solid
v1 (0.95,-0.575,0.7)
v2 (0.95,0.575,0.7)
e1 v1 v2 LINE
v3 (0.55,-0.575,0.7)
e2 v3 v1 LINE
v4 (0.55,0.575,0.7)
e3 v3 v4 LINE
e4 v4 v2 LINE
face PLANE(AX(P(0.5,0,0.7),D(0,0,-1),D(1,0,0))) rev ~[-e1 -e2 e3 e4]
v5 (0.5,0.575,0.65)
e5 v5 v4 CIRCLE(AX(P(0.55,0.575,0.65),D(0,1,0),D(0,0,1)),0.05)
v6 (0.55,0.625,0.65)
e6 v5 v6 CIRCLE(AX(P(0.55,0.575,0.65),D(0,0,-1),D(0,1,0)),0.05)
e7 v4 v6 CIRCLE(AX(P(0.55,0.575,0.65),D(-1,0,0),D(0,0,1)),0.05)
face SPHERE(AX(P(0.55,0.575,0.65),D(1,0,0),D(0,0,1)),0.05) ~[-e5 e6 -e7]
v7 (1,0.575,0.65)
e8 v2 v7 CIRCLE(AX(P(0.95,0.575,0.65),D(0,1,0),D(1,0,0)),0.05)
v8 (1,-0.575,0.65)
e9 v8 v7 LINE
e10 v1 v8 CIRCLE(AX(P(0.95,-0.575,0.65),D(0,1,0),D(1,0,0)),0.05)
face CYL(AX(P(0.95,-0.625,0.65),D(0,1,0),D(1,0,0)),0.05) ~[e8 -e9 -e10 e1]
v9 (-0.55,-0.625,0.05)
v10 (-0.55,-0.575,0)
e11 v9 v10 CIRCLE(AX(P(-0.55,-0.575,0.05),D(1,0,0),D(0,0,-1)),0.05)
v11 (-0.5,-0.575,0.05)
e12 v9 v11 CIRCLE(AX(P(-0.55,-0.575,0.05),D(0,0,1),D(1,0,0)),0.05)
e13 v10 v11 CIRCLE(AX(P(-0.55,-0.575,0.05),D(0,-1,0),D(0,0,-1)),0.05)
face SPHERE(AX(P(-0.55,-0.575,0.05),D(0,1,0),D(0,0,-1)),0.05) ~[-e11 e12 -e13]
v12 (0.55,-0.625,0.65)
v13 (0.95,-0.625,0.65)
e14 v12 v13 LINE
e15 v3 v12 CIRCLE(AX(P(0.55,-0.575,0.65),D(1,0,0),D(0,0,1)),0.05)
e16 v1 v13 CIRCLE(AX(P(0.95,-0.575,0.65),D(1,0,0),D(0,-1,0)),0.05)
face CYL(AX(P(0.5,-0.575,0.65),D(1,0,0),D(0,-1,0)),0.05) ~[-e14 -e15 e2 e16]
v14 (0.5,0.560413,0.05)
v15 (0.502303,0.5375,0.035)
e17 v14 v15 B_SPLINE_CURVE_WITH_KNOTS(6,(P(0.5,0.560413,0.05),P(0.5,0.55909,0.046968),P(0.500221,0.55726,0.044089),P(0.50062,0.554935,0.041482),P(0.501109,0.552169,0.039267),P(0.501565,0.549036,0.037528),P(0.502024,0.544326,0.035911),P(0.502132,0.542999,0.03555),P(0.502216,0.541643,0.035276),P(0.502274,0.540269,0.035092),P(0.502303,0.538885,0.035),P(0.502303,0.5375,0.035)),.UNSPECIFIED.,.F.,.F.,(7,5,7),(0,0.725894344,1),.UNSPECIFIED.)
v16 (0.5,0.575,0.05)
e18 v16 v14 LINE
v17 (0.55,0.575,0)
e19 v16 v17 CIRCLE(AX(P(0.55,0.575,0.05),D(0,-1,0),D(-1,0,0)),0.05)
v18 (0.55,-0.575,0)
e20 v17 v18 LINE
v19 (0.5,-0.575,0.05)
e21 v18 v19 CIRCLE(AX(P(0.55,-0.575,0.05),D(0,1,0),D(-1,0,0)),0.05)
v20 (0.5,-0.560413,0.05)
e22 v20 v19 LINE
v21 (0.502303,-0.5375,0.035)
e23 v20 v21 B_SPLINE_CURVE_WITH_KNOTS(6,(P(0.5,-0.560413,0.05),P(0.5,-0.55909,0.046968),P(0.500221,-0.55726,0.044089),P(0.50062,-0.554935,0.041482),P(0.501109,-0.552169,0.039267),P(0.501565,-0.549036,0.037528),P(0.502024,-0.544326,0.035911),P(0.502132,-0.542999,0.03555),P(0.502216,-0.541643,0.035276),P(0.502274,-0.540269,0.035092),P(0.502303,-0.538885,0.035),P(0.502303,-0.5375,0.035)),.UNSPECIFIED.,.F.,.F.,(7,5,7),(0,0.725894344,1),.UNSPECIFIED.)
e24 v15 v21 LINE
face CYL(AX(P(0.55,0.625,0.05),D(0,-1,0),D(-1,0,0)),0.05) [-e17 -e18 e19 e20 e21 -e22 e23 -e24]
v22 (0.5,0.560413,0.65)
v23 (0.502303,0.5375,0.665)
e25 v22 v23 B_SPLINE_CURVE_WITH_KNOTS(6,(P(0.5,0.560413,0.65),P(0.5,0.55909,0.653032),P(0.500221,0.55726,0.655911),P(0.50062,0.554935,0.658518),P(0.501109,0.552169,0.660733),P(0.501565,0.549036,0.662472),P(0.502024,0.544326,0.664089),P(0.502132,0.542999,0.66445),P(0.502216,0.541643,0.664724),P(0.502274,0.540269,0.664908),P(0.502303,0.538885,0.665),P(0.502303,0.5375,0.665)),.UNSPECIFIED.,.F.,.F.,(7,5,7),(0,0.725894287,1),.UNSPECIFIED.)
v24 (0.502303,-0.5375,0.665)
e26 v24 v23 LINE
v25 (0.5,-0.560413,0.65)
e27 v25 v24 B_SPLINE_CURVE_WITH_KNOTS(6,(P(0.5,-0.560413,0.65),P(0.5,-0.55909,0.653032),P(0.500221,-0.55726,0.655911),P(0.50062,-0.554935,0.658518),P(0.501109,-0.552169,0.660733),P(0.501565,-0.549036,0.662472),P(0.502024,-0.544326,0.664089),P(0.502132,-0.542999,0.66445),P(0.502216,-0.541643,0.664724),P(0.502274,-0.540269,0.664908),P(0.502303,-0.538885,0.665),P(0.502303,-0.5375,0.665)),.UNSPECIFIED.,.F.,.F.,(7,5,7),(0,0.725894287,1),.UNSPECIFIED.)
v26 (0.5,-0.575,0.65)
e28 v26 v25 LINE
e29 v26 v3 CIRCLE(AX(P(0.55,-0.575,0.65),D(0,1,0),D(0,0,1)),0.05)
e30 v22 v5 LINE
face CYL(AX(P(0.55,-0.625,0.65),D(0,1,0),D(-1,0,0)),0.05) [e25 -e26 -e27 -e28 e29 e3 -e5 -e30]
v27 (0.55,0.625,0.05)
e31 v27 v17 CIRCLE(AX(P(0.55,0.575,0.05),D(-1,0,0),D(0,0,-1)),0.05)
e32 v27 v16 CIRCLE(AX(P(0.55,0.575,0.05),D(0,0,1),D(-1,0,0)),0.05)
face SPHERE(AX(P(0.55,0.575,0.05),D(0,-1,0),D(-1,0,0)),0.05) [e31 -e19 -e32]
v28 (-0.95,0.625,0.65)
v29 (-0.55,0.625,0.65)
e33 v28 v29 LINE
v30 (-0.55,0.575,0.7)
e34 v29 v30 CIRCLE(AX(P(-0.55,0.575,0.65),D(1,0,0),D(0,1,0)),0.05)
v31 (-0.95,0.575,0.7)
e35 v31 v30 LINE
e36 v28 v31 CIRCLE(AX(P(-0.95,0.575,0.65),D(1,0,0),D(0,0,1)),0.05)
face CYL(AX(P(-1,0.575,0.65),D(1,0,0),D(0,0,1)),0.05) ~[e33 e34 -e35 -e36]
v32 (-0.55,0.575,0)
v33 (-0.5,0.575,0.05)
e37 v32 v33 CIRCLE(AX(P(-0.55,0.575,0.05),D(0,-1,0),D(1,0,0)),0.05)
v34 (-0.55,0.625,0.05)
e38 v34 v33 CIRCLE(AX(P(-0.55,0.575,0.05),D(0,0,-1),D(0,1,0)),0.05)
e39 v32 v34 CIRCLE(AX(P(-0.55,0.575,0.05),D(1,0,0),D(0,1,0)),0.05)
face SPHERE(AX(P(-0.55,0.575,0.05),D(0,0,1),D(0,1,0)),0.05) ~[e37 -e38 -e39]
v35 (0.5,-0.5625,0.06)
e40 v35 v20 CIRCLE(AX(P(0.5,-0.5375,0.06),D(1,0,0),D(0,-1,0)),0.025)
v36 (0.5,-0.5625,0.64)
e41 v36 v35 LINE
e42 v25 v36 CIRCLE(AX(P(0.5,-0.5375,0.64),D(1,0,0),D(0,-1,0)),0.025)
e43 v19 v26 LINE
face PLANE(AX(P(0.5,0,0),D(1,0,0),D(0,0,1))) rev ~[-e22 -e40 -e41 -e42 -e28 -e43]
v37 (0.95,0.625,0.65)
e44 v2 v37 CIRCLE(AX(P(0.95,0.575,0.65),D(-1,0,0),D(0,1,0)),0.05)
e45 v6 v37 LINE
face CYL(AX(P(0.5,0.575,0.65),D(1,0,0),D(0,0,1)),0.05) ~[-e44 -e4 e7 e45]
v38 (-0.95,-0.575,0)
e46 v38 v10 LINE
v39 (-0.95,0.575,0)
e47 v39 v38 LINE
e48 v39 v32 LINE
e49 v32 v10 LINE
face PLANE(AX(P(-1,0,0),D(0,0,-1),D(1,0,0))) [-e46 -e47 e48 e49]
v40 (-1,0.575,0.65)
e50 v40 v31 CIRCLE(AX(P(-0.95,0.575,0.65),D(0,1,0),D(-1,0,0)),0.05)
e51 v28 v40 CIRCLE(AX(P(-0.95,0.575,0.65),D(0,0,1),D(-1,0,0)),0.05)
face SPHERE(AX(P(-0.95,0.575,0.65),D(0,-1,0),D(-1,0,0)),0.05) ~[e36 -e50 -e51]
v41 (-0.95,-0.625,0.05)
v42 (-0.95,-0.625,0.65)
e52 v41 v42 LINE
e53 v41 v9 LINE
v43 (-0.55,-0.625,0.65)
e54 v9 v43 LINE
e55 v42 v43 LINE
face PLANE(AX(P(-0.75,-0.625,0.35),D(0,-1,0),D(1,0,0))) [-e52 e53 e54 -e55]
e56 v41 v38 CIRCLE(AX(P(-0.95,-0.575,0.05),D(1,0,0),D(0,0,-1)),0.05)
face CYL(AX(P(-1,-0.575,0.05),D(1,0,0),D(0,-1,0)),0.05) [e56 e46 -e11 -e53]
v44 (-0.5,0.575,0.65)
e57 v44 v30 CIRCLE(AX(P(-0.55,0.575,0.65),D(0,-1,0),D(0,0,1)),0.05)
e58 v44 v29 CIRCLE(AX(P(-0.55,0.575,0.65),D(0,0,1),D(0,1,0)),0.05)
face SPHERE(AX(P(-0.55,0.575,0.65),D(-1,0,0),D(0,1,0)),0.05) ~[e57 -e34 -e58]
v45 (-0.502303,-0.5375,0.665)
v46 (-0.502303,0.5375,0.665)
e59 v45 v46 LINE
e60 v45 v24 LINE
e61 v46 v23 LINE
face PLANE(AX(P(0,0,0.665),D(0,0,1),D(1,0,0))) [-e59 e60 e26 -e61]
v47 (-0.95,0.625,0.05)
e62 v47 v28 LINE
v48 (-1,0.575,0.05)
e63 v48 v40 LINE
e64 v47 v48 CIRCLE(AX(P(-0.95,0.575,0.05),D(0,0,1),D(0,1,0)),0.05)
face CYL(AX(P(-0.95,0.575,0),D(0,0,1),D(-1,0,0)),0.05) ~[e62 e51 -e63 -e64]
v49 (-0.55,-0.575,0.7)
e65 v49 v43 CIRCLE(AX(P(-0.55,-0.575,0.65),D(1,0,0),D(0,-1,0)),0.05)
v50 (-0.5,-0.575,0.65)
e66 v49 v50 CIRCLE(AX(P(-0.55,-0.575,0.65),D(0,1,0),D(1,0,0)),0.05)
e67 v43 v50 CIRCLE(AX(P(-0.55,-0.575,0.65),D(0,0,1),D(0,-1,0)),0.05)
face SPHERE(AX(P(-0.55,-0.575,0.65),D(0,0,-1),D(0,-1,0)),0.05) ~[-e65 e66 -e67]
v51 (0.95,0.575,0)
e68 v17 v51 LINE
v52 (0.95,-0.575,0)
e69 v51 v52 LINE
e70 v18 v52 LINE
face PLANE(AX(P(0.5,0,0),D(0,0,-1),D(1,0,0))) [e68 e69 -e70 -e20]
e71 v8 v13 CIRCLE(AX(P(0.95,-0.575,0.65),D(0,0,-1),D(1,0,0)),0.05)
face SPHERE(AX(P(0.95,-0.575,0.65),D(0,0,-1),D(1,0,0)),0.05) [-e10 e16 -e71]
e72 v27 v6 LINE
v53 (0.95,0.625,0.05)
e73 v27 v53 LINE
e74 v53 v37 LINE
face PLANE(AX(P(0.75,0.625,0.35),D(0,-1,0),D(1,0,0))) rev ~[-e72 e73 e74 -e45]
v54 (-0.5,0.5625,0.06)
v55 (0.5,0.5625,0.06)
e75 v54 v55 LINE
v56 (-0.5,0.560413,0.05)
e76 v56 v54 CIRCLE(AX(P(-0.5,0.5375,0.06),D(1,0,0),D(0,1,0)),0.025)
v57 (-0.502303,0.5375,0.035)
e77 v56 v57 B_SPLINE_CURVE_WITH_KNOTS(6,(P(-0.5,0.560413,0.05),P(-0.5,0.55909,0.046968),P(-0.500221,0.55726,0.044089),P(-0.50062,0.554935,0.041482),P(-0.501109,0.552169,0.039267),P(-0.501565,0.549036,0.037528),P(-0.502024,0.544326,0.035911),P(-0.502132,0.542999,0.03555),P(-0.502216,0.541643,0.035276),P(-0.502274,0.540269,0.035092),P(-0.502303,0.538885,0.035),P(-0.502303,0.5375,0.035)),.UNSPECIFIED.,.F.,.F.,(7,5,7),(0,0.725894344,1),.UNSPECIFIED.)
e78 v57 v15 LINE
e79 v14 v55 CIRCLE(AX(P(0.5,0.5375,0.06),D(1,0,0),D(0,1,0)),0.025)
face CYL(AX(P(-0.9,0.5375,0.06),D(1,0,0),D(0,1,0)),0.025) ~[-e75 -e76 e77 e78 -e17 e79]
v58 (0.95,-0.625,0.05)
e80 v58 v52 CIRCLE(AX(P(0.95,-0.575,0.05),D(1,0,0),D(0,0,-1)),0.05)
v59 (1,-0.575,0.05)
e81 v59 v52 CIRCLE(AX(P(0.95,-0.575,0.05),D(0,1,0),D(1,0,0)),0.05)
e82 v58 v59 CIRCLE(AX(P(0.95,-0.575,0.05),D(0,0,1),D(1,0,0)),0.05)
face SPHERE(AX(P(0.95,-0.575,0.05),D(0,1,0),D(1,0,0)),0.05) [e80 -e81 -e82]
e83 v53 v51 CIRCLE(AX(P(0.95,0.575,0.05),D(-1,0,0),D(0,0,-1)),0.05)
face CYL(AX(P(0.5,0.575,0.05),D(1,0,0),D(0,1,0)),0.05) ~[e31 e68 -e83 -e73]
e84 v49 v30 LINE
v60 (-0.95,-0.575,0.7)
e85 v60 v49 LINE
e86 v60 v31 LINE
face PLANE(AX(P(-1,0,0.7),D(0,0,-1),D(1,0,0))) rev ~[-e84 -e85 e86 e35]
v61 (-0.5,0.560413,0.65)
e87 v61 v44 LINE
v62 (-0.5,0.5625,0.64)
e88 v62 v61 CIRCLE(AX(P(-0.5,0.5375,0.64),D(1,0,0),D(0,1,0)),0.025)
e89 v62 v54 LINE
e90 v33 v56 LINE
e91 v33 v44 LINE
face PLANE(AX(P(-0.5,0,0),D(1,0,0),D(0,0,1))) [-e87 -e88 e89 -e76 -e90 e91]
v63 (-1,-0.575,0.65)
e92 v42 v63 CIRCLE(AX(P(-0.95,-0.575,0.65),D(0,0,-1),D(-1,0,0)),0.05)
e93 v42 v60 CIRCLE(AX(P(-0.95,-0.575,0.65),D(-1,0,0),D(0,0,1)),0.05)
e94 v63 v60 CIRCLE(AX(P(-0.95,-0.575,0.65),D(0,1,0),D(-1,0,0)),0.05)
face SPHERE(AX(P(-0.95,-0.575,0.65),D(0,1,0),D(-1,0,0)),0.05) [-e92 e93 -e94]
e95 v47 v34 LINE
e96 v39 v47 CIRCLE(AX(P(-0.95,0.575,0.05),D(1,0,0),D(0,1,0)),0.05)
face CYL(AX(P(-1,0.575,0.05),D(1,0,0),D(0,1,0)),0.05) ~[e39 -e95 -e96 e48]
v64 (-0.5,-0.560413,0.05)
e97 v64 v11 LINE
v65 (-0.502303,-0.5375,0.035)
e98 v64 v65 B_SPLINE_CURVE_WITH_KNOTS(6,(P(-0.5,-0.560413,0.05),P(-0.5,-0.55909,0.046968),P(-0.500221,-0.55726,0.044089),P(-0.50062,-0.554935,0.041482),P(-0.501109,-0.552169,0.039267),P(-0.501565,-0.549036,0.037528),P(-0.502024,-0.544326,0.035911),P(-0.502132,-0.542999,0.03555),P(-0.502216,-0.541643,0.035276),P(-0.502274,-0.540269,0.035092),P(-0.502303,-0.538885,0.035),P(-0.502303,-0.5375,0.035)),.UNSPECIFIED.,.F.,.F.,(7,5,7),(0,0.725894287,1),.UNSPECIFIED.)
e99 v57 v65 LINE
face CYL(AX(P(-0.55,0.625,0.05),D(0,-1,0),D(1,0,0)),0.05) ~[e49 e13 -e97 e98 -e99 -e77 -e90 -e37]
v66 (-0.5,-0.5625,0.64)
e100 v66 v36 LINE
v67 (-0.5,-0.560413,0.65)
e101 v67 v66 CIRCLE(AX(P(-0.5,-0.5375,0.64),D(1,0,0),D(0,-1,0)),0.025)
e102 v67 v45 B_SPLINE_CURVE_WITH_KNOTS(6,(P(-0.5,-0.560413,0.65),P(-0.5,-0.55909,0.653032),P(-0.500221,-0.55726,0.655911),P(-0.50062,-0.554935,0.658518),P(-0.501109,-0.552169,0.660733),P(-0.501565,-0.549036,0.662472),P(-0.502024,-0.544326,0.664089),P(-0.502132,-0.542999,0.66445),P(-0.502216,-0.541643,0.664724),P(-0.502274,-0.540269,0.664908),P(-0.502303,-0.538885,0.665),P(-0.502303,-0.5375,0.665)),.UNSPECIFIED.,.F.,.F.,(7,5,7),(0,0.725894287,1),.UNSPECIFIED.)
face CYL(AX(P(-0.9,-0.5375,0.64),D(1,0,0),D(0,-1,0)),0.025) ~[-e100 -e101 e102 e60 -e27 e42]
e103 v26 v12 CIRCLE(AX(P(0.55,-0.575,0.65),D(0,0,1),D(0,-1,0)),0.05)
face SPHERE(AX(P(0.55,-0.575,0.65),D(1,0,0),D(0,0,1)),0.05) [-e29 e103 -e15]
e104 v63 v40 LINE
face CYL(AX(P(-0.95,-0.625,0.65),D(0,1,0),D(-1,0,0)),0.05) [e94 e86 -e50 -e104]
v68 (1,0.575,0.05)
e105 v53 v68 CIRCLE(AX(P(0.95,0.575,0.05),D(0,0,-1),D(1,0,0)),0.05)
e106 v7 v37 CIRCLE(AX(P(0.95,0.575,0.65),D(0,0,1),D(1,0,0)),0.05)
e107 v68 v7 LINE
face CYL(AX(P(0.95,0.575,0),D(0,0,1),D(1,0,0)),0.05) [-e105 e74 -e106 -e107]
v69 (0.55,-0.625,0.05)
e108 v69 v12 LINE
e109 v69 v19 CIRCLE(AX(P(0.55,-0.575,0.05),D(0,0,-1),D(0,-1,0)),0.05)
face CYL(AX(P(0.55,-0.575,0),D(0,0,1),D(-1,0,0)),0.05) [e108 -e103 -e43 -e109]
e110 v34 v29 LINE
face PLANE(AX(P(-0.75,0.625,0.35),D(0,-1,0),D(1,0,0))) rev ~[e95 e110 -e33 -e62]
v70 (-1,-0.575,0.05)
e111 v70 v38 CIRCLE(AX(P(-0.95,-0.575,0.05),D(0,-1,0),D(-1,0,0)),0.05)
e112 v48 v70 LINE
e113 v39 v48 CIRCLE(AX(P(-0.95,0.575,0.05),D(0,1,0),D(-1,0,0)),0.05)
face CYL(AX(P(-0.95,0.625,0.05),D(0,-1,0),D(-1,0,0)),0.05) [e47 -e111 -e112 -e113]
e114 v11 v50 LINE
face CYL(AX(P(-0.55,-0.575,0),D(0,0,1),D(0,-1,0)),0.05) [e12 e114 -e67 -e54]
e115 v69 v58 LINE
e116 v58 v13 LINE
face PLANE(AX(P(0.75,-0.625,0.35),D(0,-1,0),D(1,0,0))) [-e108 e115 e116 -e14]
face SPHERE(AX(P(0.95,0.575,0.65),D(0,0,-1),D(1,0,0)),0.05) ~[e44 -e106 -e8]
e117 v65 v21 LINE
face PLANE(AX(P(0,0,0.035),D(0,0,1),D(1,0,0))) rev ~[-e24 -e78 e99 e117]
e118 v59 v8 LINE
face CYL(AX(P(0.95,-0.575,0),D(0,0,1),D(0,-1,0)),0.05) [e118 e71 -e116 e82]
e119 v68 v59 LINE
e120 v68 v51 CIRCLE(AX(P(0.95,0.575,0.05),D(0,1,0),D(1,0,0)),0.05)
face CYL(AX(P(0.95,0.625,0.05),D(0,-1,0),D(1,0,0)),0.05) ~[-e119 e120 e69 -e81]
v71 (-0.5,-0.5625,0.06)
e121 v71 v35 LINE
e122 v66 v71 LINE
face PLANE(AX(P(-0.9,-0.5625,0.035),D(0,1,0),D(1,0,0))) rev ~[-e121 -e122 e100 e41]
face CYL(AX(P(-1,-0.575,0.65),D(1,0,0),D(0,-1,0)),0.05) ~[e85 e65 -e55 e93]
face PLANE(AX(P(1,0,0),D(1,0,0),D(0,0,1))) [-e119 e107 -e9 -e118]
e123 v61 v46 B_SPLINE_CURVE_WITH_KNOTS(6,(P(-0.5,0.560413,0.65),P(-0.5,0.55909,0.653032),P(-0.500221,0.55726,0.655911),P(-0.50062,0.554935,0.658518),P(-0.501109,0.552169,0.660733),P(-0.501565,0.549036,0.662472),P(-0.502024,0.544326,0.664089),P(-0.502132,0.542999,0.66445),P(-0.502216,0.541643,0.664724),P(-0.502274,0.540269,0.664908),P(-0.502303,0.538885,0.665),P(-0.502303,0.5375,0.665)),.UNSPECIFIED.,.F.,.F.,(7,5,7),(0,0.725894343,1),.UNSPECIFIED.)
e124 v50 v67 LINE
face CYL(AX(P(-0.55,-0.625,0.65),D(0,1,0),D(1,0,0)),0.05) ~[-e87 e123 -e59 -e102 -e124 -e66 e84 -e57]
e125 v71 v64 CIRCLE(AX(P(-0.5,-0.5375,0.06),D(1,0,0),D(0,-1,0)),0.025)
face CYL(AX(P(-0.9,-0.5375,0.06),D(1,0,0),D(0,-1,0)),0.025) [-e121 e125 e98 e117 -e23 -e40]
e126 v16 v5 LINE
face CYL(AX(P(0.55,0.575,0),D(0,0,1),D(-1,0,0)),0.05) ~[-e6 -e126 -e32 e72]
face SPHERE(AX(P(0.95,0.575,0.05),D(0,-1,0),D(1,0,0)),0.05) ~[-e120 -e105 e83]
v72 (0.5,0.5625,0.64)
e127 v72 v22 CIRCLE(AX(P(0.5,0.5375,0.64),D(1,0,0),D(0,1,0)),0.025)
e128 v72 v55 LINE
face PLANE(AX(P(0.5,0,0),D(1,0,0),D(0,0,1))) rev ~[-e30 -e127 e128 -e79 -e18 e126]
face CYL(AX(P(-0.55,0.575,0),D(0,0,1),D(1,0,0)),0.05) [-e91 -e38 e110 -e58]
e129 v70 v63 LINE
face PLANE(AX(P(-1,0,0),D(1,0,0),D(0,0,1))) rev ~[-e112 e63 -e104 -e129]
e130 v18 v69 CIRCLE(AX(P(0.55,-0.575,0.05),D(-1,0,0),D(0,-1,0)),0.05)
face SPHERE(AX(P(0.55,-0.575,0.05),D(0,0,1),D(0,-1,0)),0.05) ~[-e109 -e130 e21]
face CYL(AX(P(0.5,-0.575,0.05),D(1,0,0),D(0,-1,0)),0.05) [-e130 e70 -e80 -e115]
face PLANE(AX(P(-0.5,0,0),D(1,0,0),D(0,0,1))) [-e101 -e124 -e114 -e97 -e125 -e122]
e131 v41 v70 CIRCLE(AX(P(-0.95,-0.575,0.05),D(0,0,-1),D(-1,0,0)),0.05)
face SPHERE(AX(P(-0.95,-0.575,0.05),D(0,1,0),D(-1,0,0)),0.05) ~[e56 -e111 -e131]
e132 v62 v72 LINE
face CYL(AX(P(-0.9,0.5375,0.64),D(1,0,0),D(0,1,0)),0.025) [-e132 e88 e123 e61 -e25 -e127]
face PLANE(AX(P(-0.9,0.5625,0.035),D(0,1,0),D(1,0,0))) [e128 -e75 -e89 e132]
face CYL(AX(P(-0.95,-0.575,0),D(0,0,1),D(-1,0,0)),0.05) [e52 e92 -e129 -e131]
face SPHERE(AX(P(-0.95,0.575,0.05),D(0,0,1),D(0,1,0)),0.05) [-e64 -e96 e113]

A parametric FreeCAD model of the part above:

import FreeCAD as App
import Part
import Sketcher


def edges_at(feature, points):
    """Names of the edges that pass closest to the given points."""
    edges = feature.Shape.Edges
    near = lambda p: min(range(len(edges)), key=lambda i: edges[i].distToShape(Part.Vertex(*p))[0])
    return sorted({f"Edge{near(p) + 1}" for p in points})

doc = App.newDocument("Part")
body = doc.addObject("PartDesign::Body", "Body")

# Sketch on XZ plane
sketch1 = body.newObject("Sketcher::SketchObject", "Sketch")
sketch1.AttachmentSupport = (doc.getObject("XZ_Plane"), [""])
sketch1.MapMode = "FlatFace"
sketch1.addGeometry([
    Part.LineSegment(App.Vector(-1, 0.7, 0), App.Vector(-1, 0, 0)),
    Part.LineSegment(App.Vector(-1, 0, 0), App.Vector(-0.5, 0, 0)),
    Part.LineSegment(App.Vector(-0.5, 0, 0), App.Vector(-0.5, 0.7, 0)),
    Part.LineSegment(App.Vector(-0.5, 0.7, 0), App.Vector(-1, 0.7, 0)),
], False)
sketch1.addConstraint([
    Sketcher.Constraint("Coincident", 0, 2, 1, 1),
    Sketcher.Constraint("Coincident", 1, 2, 2, 1),
    Sketcher.Constraint("Coincident", 2, 2, 3, 1),
    Sketcher.Constraint("Coincident", 3, 2, 0, 1),
    Sketcher.Constraint("Vertical", 0),
    Sketcher.Constraint("Horizontal", 1),
    Sketcher.Constraint("Vertical", 2),
    Sketcher.Constraint("Horizontal", 3),
    Sketcher.Constraint("PointOnObject", 0, 2, -1),
    Sketcher.Constraint("DistanceX", 1, 1, 1, 2, 0.5),
    Sketcher.Constraint("DistanceY", 0, 2, 0, 1, 0.7),
    Sketcher.Constraint("DistanceX", 0, 2, -1, 1, 1.0),
])
pad1 = body.newObject("PartDesign::Pad", "Pad")
pad1.Profile = sketch1
pad1.Length = 1.25
pad1.Midplane = True
doc.recompute()

fillet = body.newObject("PartDesign::Fillet", "Fillet")
fillet.Base = (pad1, ["Edge1"])
fillet.UseAllEdges = True
fillet.Radius = 0.05
body2 = doc.addObject("PartDesign::Body", "Body001")

# Sketch on XZ plane
sketch2 = body2.newObject("Sketcher::SketchObject", "Sketch001")
sketch2.AttachmentSupport = (doc.getObject("XZ_Plane001"), [""])
sketch2.MapMode = "FlatFace"
sketch2.addGeometry([
    Part.LineSegment(App.Vector(0.5, 0.7, 0), App.Vector(0.5, 0, 0)),
    Part.LineSegment(App.Vector(0.5, 0, 0), App.Vector(1, 0, 0)),
    Part.LineSegment(App.Vector(1, 0, 0), App.Vector(1, 0.7, 0)),
    Part.LineSegment(App.Vector(1, 0.7, 0), App.Vector(0.5, 0.7, 0)),
], False)
sketch2.addConstraint([
    Sketcher.Constraint("Coincident", 0, 2, 1, 1),
    Sketcher.Constraint("Coincident", 1, 2, 2, 1),
    Sketcher.Constraint("Coincident", 2, 2, 3, 1),
    Sketcher.Constraint("Coincident", 3, 2, 0, 1),
    Sketcher.Constraint("Vertical", 0),
    Sketcher.Constraint("Horizontal", 1),
    Sketcher.Constraint("Vertical", 2),
    Sketcher.Constraint("Horizontal", 3),
    Sketcher.Constraint("PointOnObject", 0, 2, -1),
    Sketcher.Constraint("DistanceX", 1, 1, 1, 2, 0.5),
    Sketcher.Constraint("DistanceY", 0, 2, 0, 1, 0.7),
    Sketcher.Constraint("DistanceX", -1, 1, 1, 2, 1.0),
])
pad2 = body2.newObject("PartDesign::Pad", "Pad001")
pad2.Profile = sketch2
pad2.Length = 1.25
pad2.Midplane = True
doc.recompute()

fillet2 = body2.newObject("PartDesign::Fillet", "Fillet001")
fillet2.Base = (pad2, ["Edge1"])
fillet2.UseAllEdges = True
fillet2.Radius = 0.05
body3 = doc.addObject("PartDesign::Body", "Body002")

# Sketch on XY plane
sketch3 = body3.newObject("Sketcher::SketchObject", "Sketch002")
sketch3.AttachmentSupport = (doc.getObject("XY_Plane002"), [""])
sketch3.MapMode = "FlatFace"
sketch3.AttachmentOffset = App.Placement(App.Vector(0, 0, 0.035), App.Rotation())
sketch3.addGeometry([
    Part.LineSegment(App.Vector(-0.9, 0.6, 0), App.Vector(-0.9, -0.6, 0)),
    Part.LineSegment(App.Vector(-0.9, -0.6, 0), App.Vector(0.9, -0.6, 0)),
    Part.LineSegment(App.Vector(0.9, -0.6, 0), App.Vector(0.9, 0.6, 0)),
    Part.LineSegment(App.Vector(0.9, 0.6, 0), App.Vector(-0.9, 0.6, 0)),
], False)
sketch3.addConstraint([
    Sketcher.Constraint("Coincident", 0, 2, 1, 1),
    Sketcher.Constraint("Coincident", 1, 2, 2, 1),
    Sketcher.Constraint("Coincident", 2, 2, 3, 1),
    Sketcher.Constraint("Coincident", 3, 2, 0, 1),
    Sketcher.Constraint("Vertical", 0),
    Sketcher.Constraint("Horizontal", 1),
    Sketcher.Constraint("Vertical", 2),
    Sketcher.Constraint("Horizontal", 3),
    Sketcher.Constraint("Symmetric", 0, 2, 2, 2, -1, 1),
    Sketcher.Constraint("DistanceX", 1, 1, 1, 2, 1.8),
    Sketcher.Constraint("DistanceY", 0, 2, 0, 1, 1.125),
])
pad3 = body3.newObject("PartDesign::Pad", "Pad002")
pad3.Profile = sketch3
pad3.Length = 0.63
doc.recompute()

fillet3 = body3.newObject("PartDesign::Fillet", "Fillet002")
fillet3.Base = (pad3, edges_at(pad3, [
    (0, -0.562, 0.665),
    (0, 0.562, 0.665),
    (0, -0.562, 0.035),
    (0, 0.562, 0.035),
]))
fillet3.Radius = 0.025
doc.recompute()

boolean = body3.newObject("PartDesign::Boolean", "Boolean")
boolean.Type = "Fuse"
boolean.addObjects([body])
doc.recompute()

boolean2 = body3.newObject("PartDesign::Boolean", "Boolean001")
boolean2.Type = "Fuse"
boolean2.addObjects([body2])

doc.recompute()
